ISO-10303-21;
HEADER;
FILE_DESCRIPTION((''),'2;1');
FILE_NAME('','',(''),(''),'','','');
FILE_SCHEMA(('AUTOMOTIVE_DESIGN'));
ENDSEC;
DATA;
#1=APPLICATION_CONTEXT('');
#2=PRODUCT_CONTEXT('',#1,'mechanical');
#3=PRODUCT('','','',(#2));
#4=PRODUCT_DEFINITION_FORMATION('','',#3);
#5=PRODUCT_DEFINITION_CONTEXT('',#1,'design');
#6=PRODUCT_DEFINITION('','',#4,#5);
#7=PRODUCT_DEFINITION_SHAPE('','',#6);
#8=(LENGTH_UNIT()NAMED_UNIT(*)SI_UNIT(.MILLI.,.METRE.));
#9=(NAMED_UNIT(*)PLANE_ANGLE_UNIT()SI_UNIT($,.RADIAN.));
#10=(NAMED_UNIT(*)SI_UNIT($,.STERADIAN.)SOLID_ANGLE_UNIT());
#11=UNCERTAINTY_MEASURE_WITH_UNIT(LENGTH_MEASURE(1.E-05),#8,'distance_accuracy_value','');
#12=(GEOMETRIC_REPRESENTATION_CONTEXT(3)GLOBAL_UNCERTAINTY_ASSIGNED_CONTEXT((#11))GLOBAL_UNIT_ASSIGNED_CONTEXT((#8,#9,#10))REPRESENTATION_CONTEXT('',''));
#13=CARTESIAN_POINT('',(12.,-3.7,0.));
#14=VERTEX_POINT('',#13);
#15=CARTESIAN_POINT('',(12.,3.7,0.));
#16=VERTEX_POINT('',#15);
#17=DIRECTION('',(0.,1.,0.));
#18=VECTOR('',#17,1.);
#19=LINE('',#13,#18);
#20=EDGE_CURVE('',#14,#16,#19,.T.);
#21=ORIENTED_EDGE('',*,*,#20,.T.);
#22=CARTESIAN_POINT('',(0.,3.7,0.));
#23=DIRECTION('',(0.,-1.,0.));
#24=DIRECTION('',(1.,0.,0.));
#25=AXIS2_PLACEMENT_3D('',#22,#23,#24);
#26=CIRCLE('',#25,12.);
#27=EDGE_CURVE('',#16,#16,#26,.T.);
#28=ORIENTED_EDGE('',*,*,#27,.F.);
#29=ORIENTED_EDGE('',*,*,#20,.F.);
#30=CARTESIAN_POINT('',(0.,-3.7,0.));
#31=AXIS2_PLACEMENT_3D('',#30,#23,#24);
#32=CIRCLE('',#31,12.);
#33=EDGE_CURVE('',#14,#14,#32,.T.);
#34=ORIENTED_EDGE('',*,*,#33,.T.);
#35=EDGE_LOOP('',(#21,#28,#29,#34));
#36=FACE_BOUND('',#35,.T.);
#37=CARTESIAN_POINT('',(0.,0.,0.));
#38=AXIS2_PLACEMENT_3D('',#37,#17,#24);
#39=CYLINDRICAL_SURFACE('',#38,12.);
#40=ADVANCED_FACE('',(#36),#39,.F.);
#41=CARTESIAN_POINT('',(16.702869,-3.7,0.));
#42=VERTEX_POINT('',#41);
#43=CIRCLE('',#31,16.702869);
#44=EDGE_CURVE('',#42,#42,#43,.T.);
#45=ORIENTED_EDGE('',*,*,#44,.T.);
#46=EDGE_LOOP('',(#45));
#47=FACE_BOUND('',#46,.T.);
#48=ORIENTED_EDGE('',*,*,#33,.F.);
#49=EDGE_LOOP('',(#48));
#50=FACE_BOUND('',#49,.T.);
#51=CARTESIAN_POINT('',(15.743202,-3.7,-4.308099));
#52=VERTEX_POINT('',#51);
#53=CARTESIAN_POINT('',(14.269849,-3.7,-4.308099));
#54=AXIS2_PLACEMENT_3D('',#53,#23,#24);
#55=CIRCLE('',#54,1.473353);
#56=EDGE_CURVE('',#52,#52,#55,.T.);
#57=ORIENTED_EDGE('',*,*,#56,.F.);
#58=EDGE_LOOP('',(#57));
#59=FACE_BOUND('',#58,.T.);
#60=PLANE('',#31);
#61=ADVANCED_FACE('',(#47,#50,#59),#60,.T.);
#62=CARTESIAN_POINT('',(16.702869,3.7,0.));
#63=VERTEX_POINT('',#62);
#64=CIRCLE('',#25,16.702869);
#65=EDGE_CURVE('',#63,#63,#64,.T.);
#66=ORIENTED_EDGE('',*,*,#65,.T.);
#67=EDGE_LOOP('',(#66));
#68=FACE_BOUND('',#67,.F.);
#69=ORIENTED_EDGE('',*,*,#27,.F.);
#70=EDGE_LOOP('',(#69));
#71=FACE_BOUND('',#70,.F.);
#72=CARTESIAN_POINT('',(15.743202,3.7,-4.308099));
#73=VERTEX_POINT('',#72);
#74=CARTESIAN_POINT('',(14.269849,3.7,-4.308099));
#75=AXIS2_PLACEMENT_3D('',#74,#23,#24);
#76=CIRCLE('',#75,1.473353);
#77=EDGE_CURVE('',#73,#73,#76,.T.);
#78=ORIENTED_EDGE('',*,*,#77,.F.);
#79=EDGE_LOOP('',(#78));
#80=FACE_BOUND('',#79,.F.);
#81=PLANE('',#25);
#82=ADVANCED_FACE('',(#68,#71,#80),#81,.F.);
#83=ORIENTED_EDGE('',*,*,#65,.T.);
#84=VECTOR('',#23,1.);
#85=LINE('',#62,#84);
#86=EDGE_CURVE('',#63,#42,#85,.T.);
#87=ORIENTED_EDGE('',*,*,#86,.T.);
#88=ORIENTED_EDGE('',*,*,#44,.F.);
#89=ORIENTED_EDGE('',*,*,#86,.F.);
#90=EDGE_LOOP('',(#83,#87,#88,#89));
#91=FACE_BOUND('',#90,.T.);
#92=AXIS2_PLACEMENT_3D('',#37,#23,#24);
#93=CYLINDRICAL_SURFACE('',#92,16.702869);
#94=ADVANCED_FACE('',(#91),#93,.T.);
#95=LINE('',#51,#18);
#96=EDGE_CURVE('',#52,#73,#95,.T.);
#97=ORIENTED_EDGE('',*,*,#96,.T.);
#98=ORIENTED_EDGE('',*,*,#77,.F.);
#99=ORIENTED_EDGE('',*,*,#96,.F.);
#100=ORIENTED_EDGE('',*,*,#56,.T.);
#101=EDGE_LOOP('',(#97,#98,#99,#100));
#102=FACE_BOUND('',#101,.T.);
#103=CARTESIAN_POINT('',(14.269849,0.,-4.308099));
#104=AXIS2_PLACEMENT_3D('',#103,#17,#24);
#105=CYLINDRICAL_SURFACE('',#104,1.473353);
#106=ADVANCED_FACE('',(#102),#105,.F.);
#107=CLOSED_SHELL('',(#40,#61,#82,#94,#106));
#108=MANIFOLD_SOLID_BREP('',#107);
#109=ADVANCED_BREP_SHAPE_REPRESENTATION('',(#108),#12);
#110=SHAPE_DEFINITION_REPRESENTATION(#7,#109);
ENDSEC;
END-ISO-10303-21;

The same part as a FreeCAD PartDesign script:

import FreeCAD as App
import Part
import Sketcher

V = App.Vector
Q = App.Units.Quantity

doc = App.newDocument("Part")
body = doc.addObject("PartDesign::Body", "Body")

# Sketch on XZ plane
sketch1 = body.newObject("Sketcher::SketchObject", "Sketch")
sketch1.AttachmentSupport = (doc.getObject("XZ_Plane"), [""])
sketch1.MapMode = "FlatFace"
sketch1.addGeometry([
    Part.Circle(V(0, 0, 0), V(0, 0, 1), 16.7),
    Part.Circle(V(14.3, -4.3, 0), V(0, 0, 1), 1.5),
    Part.Circle(V(0, 0, 0), V(0, 0, 1), 12),
], False)
sketch1.addConstraint([
    Sketcher.Constraint("Coincident", 0, 3, -1, 1),
    Sketcher.Constraint("Coincident", 2, 3, -1, 1),
    Sketcher.Constraint("Diameter", 2, Q("24 mm")),
    Sketcher.Constraint("Diameter", 0, Q("33.405738 mm")),
    Sketcher.Constraint("Diameter", 1, Q("2.946706 mm")),
    Sketcher.Constraint("DistanceY", 1, 3, -1, 1, Q("4.308099 mm")),
    Sketcher.Constraint("DistanceX", -1, 1, 1, 3, Q("14.269849 mm")),
])
pad1 = body.newObject("PartDesign::Pad", "Pad")
pad1.Profile = sketch1
pad1.Length = 7.4
pad1.Midplane = True

doc.recompute()
